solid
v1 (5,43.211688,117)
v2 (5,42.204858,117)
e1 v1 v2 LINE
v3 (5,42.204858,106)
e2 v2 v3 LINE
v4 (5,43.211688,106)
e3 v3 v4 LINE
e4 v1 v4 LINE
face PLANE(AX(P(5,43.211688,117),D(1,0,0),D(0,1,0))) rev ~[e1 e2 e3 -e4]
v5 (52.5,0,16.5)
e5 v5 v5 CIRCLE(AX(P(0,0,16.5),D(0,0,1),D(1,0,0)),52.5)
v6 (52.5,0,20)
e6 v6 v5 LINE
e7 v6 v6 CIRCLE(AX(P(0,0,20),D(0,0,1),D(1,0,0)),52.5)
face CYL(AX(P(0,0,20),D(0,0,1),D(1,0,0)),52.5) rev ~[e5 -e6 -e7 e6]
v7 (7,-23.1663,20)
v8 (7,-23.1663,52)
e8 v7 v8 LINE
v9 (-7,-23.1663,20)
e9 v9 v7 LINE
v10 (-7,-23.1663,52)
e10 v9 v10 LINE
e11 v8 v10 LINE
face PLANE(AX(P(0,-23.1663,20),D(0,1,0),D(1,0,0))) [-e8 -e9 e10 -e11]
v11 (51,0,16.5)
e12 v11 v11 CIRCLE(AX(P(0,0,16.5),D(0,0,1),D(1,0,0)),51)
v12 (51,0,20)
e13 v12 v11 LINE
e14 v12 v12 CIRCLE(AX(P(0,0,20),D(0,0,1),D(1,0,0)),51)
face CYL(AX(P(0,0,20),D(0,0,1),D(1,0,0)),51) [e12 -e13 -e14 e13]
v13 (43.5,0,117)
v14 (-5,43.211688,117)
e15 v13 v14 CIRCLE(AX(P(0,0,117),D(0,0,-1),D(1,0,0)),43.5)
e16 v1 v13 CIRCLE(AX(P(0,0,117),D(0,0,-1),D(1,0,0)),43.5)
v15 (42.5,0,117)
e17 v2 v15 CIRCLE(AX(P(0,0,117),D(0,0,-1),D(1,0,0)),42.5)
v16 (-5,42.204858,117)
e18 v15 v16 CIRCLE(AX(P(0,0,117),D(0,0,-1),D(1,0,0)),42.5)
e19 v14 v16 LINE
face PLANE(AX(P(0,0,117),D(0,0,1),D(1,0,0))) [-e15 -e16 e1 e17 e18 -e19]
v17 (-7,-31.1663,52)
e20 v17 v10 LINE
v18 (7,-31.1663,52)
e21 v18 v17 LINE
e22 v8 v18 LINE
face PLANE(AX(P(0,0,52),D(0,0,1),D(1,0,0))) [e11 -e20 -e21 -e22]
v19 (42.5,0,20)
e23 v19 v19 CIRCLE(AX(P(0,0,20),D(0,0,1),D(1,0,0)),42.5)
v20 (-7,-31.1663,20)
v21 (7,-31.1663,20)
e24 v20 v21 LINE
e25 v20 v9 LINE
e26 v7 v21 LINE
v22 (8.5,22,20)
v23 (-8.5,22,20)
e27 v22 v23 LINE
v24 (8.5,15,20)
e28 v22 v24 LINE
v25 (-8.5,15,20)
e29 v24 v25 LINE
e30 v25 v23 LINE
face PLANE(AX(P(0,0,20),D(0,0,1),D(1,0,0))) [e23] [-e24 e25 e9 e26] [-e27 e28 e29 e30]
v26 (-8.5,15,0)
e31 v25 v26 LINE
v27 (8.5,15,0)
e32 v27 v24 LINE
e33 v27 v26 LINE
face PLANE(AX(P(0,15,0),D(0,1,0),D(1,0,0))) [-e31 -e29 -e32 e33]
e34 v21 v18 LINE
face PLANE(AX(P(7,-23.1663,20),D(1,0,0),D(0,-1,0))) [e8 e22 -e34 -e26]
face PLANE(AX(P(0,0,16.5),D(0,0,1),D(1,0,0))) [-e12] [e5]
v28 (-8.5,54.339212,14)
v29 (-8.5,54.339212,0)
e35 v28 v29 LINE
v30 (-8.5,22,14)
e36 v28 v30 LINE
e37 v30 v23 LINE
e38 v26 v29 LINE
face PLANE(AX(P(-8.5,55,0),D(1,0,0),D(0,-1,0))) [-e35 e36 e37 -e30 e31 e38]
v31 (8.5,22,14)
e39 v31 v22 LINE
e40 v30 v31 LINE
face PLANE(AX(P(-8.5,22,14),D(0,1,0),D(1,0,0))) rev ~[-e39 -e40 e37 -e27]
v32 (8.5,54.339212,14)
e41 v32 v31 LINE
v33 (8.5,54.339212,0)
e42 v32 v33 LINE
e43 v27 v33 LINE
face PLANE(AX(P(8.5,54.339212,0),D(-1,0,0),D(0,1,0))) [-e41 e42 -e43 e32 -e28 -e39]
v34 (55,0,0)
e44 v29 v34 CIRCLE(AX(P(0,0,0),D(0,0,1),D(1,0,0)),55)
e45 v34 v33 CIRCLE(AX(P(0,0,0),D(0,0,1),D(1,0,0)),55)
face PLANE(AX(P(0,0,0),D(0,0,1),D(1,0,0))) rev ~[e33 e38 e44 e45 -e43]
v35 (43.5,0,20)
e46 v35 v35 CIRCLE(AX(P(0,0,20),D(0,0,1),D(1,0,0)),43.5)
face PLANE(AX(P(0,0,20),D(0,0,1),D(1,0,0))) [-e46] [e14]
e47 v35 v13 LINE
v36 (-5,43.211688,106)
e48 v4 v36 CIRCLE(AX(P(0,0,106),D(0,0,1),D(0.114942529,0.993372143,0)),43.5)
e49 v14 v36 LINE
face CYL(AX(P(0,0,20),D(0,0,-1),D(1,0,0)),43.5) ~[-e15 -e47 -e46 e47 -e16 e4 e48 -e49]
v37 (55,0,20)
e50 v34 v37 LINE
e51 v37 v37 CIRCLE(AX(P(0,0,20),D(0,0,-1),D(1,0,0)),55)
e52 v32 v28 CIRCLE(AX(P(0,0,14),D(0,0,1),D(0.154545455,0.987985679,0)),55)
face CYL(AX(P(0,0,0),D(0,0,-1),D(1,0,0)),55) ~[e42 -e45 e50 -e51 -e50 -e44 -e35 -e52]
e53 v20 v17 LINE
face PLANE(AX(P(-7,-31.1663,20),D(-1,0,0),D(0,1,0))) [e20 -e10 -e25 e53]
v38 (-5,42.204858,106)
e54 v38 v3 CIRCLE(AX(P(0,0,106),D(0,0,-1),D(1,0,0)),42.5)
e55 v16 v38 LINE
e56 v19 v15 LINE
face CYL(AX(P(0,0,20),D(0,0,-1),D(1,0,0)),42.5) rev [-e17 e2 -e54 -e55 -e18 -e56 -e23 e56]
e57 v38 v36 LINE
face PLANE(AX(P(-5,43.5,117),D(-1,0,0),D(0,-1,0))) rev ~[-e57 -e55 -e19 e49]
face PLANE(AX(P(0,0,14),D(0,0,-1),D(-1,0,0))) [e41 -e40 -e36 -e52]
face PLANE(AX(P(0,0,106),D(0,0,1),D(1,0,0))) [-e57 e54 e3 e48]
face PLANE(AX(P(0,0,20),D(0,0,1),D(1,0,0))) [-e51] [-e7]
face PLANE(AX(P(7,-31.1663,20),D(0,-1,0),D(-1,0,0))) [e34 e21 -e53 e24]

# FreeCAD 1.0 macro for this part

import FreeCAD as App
import Part
import Sketcher
from FreeCAD import Vector

doc = App.newDocument("Part")
params = doc.addObject("Spreadsheet::Sheet", "Params")
for row, (alias, value) in enumerate([
    ("sketch1_diameter", "110 mm"),
    ("pad1_length", "20 mm"),
    ("sketch2_diameter", "105 mm"),
    ("sketch2_diameter2", "102 mm"),
    ("pocket1_length", "3.5 mm"),
    ("sketch3_width", "17 mm"),
    ("sketch3_height", "40 mm"),
    ("pocket2_length", "14 mm"),
    ("sketch4_height", "7 mm"),
    ("sketch4_width", "17 mm"),
    ("sketch5_diameter", "87 mm"),
    ("sketch5_diameter2", "85 mm"),
    ("pad2_length", "97 mm"),
    ("sketch6_width", "10 mm"),
    ("pocket4_length", "11 mm"),
    ("sketch7_width", "14 mm"),
    ("sketch7_height", "8 mm"),
    ("pad3_length", "32 mm"),
], start=1):
    params.set(f"A{row}", alias)
    params.set(f"B{row}", "=" + value)
    params.setAlias(f"B{row}", alias)

body = doc.addObject("PartDesign::Body", "Body")

# Sketch on XY plane
sketch1 = body.newObject("Sketcher::SketchObject", "Sketch")
sketch1.AttachmentSupport = (doc.getObject("XY_Plane"), [""])
sketch1.MapMode = "FlatFace"
sketch1.addGeometry(Part.Circle(Vector(0, 0, 0), Vector(0, 0, 1), 55), False)
sketch1.addConstraint(Sketcher.Constraint("Coincident", 0, 3, -1, 1))
sketch1.addConstraint(Sketcher.Constraint("Diameter", 0, 110.0))
sketch1.setExpression("Constraints[1]", "Params.sketch1_diameter")
pad1 = body.newObject("PartDesign::Pad", "Pad")
pad1.Profile = sketch1
pad1.setExpression("Length", "Params.pad1_length")

# Sketch on XY plane
sketch2 = body.newObject("Sketcher::SketchObject", "Sketch001")
sketch2.AttachmentSupport = (doc.getObject("XY_Plane"), [""])
sketch2.MapMode = "FlatFace"
sketch2.AttachmentOffset = App.Placement(Vector(0, 0, 20), App.Rotation())
sketch2.addGeometry(Part.Circle(Vector(0, 0, 0), Vector(0, 0, 1), 52.5), False)
sketch2.addGeometry(Part.Circle(Vector(0, 0, 0), Vector(0, 0, 1), 51), False)
sketch2.addConstraint(Sketcher.Constraint("Coincident", 0, 3, -1, 1))
sketch2.addConstraint(Sketcher.Constraint("Coincident", 1, 3, -1, 1))
sketch2.addConstraint(Sketcher.Constraint("Diameter", 0, 105.0))
sketch2.addConstraint(Sketcher.Constraint("Diameter", 1, 102.0))
sketch2.setExpression("Constraints[2]", "Params.sketch2_diameter")
sketch2.setExpression("Constraints[3]", "Params.sketch2_diameter2")
pocket1 = body.newObject("PartDesign::Pocket", "Pocket")
pocket1.Profile = sketch2
pocket1.setExpression("Length", "Params.pocket1_length")

# Sketch on XY plane
sketch3 = body.newObject("Sketcher::SketchObject", "Sketch002")
sketch3.AttachmentSupport = (doc.getObject("XY_Plane"), [""])
sketch3.MapMode = "FlatFace"
sketch3.addGeometry(Part.LineSegment(Vector(8.5, 55, 0), Vector(8.5, 15, 0)), False)
sketch3.addGeometry(Part.LineSegment(Vector(8.5, 15, 0), Vector(-8.5, 15, 0)), False)
sketch3.addGeometry(Part.LineSegment(Vector(-8.5, 15, 0), Vector(-8.5, 55, 0)), False)
sketch3.addGeometry(Part.LineSegment(Vector(-8.5, 55, 0), Vector(8.5, 55, 0)), False)
sketch3.addConstraint(Sketcher.Constraint("Coincident", 0, 2, 1, 1))
sketch3.addConstraint(Sketcher.Constraint("Coincident", 1, 2, 2, 1))
sketch3.addConstraint(Sketcher.Constraint("Coincident", 2, 2, 3, 1))
sketch3.addConstraint(Sketcher.Constraint("Coincident", 3, 2, 0, 1))
sketch3.addConstraint(Sketcher.Constraint("Vertical", 0))
sketch3.addConstraint(Sketcher.Constraint("Horizontal", 1))
sketch3.addConstraint(Sketcher.Constraint("Vertical", 2))
sketch3.addConstraint(Sketcher.Constraint("Horizontal", 3))
sketch3.addConstraint(Sketcher.Constraint("DistanceX", 1, 2, 1, 1, 17.0))
sketch3.addConstraint(Sketcher.Constraint("DistanceY", 0, 2, 0, 1, 40.0))
sketch3.addConstraint(Sketcher.Constraint("DistanceY", -1, 1, 0, 2, 15.0))
sketch3.addConstraint(Sketcher.Constraint("DistanceX", -1, 1, 0, 2, 8.5))
sketch3.setExpression("Constraints[8]", "Params.sketch3_width")
sketch3.setExpression("Constraints[9]", "Params.sketch3_height")
pocket2 = body.newObject("PartDesign::Pocket", "Pocket001")
pocket2.Profile = sketch3
pocket2.setExpression("Length", "Params.pocket2_length")
pocket2.Reversed = True

# Sketch on XY plane
sketch4 = body.newObject("Sketcher::SketchObject", "Sketch003")
sketch4.AttachmentSupport = (doc.getObject("XY_Plane"), [""])
sketch4.MapMode = "FlatFace"
sketch4.AttachmentOffset = App.Placement(Vector(0, 0, 14), App.Rotation())
sketch4.addGeometry(Part.LineSegment(Vector(-8.5, 15, 0), Vector(-8.5, 22, 0)), False)
sketch4.addGeometry(Part.LineSegment(Vector(-8.5, 22, 0), Vector(8.5, 22, 0)), False)
sketch4.addGeometry(Part.LineSegment(Vector(8.5, 22, 0), Vector(8.5, 15, 0)), False)
sketch4.addGeometry(Part.LineSegment(Vector(8.5, 15, 0), Vector(-8.5, 15, 0)), False)
sketch4.addConstraint(Sketcher.Constraint("Coincident", 0, 2, 1, 1))
sketch4.addConstraint(Sketcher.Constraint("Coincident", 1, 2, 2, 1))
sketch4.addConstraint(Sketcher.Constraint("Coincident", 2, 2, 3, 1))
sketch4.addConstraint(Sketcher.Constraint("Coincident", 3, 2, 0, 1))
sketch4.addConstraint(Sketcher.Constraint("Vertical", 0))
sketch4.addConstraint(Sketcher.Constraint("Horizontal", 1))
sketch4.addConstraint(Sketcher.Constraint("Vertical", 2))
sketch4.addConstraint(Sketcher.Constraint("Horizontal", 3))
sketch4.addConstraint(Sketcher.Constraint("DistanceY", 0, 1, 0, 2, 7.0))
sketch4.addConstraint(Sketcher.Constraint("DistanceX", 1, 1, 1, 2, 17.0))
sketch4.addConstraint(Sketcher.Constraint("DistanceY", -1, 1, 0, 2, 22.0))
sketch4.addConstraint(Sketcher.Constraint("DistanceX", 0, 2, -1, 1, 8.5))
sketch4.setExpression("Constraints[8]", "Params.sketch4_height")
sketch4.setExpression("Constraints[9]", "Params.sketch4_width")
pocket3 = body.newObject("PartDesign::Pocket", "Pocket002")
pocket3.Profile = sketch4
pocket3.Type = "ThroughAll"
pocket3.Reversed = True

# Sketch on XY plane
sketch5 = body.newObject("Sketcher::SketchObject", "Sketch004")
sketch5.AttachmentSupport = (doc.getObject("XY_Plane"), [""])
sketch5.MapMode = "FlatFace"
sketch5.AttachmentOffset = App.Placement(Vector(0, 0, 20), App.Rotation())
sketch5.addGeometry(Part.Circle(Vector(0, 0, 0), Vector(0, 0, 1), 43.5), False)
sketch5.addGeometry(Part.Circle(Vector(0, 0, 0), Vector(0, 0, 1), 42.5), False)
sketch5.addConstraint(Sketcher.Constraint("Coincident", 0, 3, -1, 1))
sketch5.addConstraint(Sketcher.Constraint("Coincident", 1, 3, -1, 1))
sketch5.addConstraint(Sketcher.Constraint("Diameter", 0, 87.0))
sketch5.addConstraint(Sketcher.Constraint("Diameter", 1, 85.0))
sketch5.setExpression("Constraints[2]", "Params.sketch5_diameter")
sketch5.setExpression("Constraints[3]", "Params.sketch5_diameter2")
pad2 = body.newObject("PartDesign::Pad", "Pad001")
pad2.Profile = sketch5
pad2.setExpression("Length", "Params.pad2_length")

# Sketch on XY plane
sketch6 = body.newObject("Sketcher::SketchObject", "Sketch005")
sketch6.AttachmentSupport = (doc.getObject("XY_Plane"), [""])
sketch6.MapMode = "FlatFace"
sketch6.AttachmentOffset = App.Placement(Vector(0, 0, 117), App.Rotation())
sketch6.addGeometry(Part.LineSegment(Vector(5, 43.5, 0), Vector(-5, 43.5, 0)), False)
sketch6.addGeometry(Part.LineSegment(Vector(-5, 43.5, 0), Vector(-5, 33.5, 0)), False)
sketch6.addGeometry(Part.LineSegment(Vector(-5, 33.5, 0), Vector(5, 33.5, 0)), False)
sketch6.addGeometry(Part.LineSegment(Vector(5, 33.5, 0), Vector(5, 43.5, 0)), False)
sketch6.addConstraint(Sketcher.Constraint("Coincident", 0, 2, 1, 1))
sketch6.addConstraint(Sketcher.Constraint("Coincident", 1, 2, 2, 1))
sketch6.addConstraint(Sketcher.Constraint("Coincident", 2, 2, 3, 1))
sketch6.addConstraint(Sketcher.Constraint("Coincident", 3, 2, 0, 1))
sketch6.addConstraint(Sketcher.Constraint("Horizontal", 0))
sketch6.addConstraint(Sketcher.Constraint("Vertical", 1))
sketch6.addConstraint(Sketcher.Constraint("Horizontal", 2))
sketch6.addConstraint(Sketcher.Constraint("Vertical", 3))
sketch6.addConstraint(Sketcher.Constraint("Equal", 2, 1))
sketch6.addConstraint(Sketcher.Constraint("DistanceX", 0, 2, 0, 1, 10.0))
sketch6.addConstraint(Sketcher.Constraint("DistanceX", 0, 2, -1, 1, 5.0))
sketch6.addConstraint(Sketcher.Constraint("DistanceY", -1, 1, 0, 2, 43.5))
sketch6.setExpression("Constraints[9]", "Params.sketch6_width")
pocket4 = body.newObject("PartDesign::Pocket", "Pocket003")
pocket4.Profile = sketch6
pocket4.setExpression("Length", "Params.pocket4_length")

# Sketch on XY plane
sketch7 = body.newObject("Sketcher::SketchObject", "Sketch006")
sketch7.AttachmentSupport = (doc.getObject("XY_Plane"), [""])
sketch7.MapMode = "FlatFace"
sketch7.AttachmentOffset = App.Placement(Vector(0, 0, 20), App.Rotation())
sketch7.addGeometry(Part.LineSegment(Vector(7, -31.1663, 0), Vector(7, -23.1663, 0)), False)
sketch7.addGeometry(Part.LineSegment(Vector(7, -23.1663, 0), Vector(-7, -23.1663, 0)), False)
sketch7.addGeometry(Part.LineSegment(Vector(-7, -23.1663, 0), Vector(-7, -31.1663, 0)), False)
sketch7.addGeometry(Part.LineSegment(Vector(-7, -31.1663, 0), Vector(7, -31.1663, 0)), False)
sketch7.addConstraint(Sketcher.Constraint("Coincident", 0, 2, 1, 1))
sketch7.addConstraint(Sketcher.Constraint("Coincident", 1, 2, 2, 1))
sketch7.addConstraint(Sketcher.Constraint("Coincident", 2, 2, 3, 1))
sketch7.addConstraint(Sketcher.Constraint("Coincident", 3, 2, 0, 1))
sketch7.addConstraint(Sketcher.Constraint("Vertical", 0))
sketch7.addConstraint(Sketcher.Constraint("Horizontal", 1))
sketch7.addConstraint(Sketcher.Constraint("Vertical", 2))
sketch7.addConstraint(Sketcher.Constraint("Horizontal", 3))
sketch7.addConstraint(Sketcher.Constraint("DistanceX", 1, 2, 1, 1, 14.0))
sketch7.addConstraint(Sketcher.Constraint("DistanceY", 0, 1, 0, 2, 8.0))
sketch7.addConstraint(Sketcher.Constraint("DistanceX", -1, 1, 0, 2, 7.0))
sketch7.addConstraint(Sketcher.Constraint("DistanceY", 0, 2, -1, 1, 23.1663))
sketch7.setExpression("Constraints[8]", "Params.sketch7_width")
sketch7.setExpression("Constraints[9]", "Params.sketch7_height")
pad3 = body.newObject("PartDesign::Pad", "Pad002")
pad3.Profile = sketch7
pad3.setExpression("Length", "Params.pad3_length")

doc.recompute()
